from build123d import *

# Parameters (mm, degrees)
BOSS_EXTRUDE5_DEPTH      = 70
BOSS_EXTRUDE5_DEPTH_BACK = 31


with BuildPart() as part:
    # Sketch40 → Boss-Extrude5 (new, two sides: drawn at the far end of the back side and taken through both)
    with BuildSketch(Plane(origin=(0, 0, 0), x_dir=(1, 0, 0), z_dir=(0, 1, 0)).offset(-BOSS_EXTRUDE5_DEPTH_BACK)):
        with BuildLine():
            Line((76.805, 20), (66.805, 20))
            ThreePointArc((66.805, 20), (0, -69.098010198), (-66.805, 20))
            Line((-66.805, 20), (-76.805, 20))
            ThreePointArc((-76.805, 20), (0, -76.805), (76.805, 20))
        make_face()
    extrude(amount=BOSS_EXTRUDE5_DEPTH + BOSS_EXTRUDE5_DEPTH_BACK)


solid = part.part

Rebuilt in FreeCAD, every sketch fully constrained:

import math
import FreeCAD as App
import Part
import Sketcher

V = App.Vector
Q = App.Units.Quantity

doc = App.newDocument("Part")
body = doc.addObject("PartDesign::Body", "Body")

sketch1 = body.newObject("Sketcher::SketchObject", "Sketch")
sketch1.AttachmentSupport = (doc.getObject("XZ_Plane"), [""])
sketch1.MapMode = "FlatFace"
sketch1.addGeometry([
    Part.LineSegment(V(76.805, -20, 0), V(66.805, -20, 0)),
    Part.ArcOfCircle(Part.Circle(V(0, -0.495931, 0), V(0, 0, 1), 69.593942), math.radians(-16.27544), math.radians(196.27544)),
    Part.LineSegment(V(-66.805, -20, 0), V(-76.805, -20, 0)),
    Part.ArcOfCircle(Part.Circle(V(0, -2.066009, 0), V(0, 0, 1), 78.871009), math.radians(-13.143095), math.radians(193.143095)),
], False)
sketch1.addConstraint([
    Sketcher.Constraint("Coincident", 0, 2, 1, 1),
    Sketcher.Constraint("Coincident", 1, 2, 2, 1),
    Sketcher.Constraint("Coincident", 2, 2, 3, 2),
    Sketcher.Constraint("Coincident", 3, 1, 0, 1),
    Sketcher.Constraint("Horizontal", 0),
    Sketcher.Constraint("Horizontal", 2),
    Sketcher.Constraint("Symmetric", 0, 2, 1, 2, -2),
    Sketcher.Constraint("PointOnObject", 3, 3, -2),
    Sketcher.Constraint("DistanceX", 0, 2, 0, 1, Q("10 mm")),
    Sketcher.Constraint("DistanceY", 0, 2, -1, 1, Q("20 mm")),
    Sketcher.Constraint("Radius", 1, Q("69.593942 mm")),
    Sketcher.Constraint("Radius", 3, Q("78.871009 mm")),
    Sketcher.Constraint("DistanceX", 1, 2, 0, 2, Q("133.61 mm")),
])
pad1 = body.newObject("PartDesign::Pad", "Pad")
pad1.Profile = sketch1
pad1.Type = "TwoLengths"
pad1.Length = 70
pad1.Length2 = 31
pad1.Reversed = True

doc.recompute()
